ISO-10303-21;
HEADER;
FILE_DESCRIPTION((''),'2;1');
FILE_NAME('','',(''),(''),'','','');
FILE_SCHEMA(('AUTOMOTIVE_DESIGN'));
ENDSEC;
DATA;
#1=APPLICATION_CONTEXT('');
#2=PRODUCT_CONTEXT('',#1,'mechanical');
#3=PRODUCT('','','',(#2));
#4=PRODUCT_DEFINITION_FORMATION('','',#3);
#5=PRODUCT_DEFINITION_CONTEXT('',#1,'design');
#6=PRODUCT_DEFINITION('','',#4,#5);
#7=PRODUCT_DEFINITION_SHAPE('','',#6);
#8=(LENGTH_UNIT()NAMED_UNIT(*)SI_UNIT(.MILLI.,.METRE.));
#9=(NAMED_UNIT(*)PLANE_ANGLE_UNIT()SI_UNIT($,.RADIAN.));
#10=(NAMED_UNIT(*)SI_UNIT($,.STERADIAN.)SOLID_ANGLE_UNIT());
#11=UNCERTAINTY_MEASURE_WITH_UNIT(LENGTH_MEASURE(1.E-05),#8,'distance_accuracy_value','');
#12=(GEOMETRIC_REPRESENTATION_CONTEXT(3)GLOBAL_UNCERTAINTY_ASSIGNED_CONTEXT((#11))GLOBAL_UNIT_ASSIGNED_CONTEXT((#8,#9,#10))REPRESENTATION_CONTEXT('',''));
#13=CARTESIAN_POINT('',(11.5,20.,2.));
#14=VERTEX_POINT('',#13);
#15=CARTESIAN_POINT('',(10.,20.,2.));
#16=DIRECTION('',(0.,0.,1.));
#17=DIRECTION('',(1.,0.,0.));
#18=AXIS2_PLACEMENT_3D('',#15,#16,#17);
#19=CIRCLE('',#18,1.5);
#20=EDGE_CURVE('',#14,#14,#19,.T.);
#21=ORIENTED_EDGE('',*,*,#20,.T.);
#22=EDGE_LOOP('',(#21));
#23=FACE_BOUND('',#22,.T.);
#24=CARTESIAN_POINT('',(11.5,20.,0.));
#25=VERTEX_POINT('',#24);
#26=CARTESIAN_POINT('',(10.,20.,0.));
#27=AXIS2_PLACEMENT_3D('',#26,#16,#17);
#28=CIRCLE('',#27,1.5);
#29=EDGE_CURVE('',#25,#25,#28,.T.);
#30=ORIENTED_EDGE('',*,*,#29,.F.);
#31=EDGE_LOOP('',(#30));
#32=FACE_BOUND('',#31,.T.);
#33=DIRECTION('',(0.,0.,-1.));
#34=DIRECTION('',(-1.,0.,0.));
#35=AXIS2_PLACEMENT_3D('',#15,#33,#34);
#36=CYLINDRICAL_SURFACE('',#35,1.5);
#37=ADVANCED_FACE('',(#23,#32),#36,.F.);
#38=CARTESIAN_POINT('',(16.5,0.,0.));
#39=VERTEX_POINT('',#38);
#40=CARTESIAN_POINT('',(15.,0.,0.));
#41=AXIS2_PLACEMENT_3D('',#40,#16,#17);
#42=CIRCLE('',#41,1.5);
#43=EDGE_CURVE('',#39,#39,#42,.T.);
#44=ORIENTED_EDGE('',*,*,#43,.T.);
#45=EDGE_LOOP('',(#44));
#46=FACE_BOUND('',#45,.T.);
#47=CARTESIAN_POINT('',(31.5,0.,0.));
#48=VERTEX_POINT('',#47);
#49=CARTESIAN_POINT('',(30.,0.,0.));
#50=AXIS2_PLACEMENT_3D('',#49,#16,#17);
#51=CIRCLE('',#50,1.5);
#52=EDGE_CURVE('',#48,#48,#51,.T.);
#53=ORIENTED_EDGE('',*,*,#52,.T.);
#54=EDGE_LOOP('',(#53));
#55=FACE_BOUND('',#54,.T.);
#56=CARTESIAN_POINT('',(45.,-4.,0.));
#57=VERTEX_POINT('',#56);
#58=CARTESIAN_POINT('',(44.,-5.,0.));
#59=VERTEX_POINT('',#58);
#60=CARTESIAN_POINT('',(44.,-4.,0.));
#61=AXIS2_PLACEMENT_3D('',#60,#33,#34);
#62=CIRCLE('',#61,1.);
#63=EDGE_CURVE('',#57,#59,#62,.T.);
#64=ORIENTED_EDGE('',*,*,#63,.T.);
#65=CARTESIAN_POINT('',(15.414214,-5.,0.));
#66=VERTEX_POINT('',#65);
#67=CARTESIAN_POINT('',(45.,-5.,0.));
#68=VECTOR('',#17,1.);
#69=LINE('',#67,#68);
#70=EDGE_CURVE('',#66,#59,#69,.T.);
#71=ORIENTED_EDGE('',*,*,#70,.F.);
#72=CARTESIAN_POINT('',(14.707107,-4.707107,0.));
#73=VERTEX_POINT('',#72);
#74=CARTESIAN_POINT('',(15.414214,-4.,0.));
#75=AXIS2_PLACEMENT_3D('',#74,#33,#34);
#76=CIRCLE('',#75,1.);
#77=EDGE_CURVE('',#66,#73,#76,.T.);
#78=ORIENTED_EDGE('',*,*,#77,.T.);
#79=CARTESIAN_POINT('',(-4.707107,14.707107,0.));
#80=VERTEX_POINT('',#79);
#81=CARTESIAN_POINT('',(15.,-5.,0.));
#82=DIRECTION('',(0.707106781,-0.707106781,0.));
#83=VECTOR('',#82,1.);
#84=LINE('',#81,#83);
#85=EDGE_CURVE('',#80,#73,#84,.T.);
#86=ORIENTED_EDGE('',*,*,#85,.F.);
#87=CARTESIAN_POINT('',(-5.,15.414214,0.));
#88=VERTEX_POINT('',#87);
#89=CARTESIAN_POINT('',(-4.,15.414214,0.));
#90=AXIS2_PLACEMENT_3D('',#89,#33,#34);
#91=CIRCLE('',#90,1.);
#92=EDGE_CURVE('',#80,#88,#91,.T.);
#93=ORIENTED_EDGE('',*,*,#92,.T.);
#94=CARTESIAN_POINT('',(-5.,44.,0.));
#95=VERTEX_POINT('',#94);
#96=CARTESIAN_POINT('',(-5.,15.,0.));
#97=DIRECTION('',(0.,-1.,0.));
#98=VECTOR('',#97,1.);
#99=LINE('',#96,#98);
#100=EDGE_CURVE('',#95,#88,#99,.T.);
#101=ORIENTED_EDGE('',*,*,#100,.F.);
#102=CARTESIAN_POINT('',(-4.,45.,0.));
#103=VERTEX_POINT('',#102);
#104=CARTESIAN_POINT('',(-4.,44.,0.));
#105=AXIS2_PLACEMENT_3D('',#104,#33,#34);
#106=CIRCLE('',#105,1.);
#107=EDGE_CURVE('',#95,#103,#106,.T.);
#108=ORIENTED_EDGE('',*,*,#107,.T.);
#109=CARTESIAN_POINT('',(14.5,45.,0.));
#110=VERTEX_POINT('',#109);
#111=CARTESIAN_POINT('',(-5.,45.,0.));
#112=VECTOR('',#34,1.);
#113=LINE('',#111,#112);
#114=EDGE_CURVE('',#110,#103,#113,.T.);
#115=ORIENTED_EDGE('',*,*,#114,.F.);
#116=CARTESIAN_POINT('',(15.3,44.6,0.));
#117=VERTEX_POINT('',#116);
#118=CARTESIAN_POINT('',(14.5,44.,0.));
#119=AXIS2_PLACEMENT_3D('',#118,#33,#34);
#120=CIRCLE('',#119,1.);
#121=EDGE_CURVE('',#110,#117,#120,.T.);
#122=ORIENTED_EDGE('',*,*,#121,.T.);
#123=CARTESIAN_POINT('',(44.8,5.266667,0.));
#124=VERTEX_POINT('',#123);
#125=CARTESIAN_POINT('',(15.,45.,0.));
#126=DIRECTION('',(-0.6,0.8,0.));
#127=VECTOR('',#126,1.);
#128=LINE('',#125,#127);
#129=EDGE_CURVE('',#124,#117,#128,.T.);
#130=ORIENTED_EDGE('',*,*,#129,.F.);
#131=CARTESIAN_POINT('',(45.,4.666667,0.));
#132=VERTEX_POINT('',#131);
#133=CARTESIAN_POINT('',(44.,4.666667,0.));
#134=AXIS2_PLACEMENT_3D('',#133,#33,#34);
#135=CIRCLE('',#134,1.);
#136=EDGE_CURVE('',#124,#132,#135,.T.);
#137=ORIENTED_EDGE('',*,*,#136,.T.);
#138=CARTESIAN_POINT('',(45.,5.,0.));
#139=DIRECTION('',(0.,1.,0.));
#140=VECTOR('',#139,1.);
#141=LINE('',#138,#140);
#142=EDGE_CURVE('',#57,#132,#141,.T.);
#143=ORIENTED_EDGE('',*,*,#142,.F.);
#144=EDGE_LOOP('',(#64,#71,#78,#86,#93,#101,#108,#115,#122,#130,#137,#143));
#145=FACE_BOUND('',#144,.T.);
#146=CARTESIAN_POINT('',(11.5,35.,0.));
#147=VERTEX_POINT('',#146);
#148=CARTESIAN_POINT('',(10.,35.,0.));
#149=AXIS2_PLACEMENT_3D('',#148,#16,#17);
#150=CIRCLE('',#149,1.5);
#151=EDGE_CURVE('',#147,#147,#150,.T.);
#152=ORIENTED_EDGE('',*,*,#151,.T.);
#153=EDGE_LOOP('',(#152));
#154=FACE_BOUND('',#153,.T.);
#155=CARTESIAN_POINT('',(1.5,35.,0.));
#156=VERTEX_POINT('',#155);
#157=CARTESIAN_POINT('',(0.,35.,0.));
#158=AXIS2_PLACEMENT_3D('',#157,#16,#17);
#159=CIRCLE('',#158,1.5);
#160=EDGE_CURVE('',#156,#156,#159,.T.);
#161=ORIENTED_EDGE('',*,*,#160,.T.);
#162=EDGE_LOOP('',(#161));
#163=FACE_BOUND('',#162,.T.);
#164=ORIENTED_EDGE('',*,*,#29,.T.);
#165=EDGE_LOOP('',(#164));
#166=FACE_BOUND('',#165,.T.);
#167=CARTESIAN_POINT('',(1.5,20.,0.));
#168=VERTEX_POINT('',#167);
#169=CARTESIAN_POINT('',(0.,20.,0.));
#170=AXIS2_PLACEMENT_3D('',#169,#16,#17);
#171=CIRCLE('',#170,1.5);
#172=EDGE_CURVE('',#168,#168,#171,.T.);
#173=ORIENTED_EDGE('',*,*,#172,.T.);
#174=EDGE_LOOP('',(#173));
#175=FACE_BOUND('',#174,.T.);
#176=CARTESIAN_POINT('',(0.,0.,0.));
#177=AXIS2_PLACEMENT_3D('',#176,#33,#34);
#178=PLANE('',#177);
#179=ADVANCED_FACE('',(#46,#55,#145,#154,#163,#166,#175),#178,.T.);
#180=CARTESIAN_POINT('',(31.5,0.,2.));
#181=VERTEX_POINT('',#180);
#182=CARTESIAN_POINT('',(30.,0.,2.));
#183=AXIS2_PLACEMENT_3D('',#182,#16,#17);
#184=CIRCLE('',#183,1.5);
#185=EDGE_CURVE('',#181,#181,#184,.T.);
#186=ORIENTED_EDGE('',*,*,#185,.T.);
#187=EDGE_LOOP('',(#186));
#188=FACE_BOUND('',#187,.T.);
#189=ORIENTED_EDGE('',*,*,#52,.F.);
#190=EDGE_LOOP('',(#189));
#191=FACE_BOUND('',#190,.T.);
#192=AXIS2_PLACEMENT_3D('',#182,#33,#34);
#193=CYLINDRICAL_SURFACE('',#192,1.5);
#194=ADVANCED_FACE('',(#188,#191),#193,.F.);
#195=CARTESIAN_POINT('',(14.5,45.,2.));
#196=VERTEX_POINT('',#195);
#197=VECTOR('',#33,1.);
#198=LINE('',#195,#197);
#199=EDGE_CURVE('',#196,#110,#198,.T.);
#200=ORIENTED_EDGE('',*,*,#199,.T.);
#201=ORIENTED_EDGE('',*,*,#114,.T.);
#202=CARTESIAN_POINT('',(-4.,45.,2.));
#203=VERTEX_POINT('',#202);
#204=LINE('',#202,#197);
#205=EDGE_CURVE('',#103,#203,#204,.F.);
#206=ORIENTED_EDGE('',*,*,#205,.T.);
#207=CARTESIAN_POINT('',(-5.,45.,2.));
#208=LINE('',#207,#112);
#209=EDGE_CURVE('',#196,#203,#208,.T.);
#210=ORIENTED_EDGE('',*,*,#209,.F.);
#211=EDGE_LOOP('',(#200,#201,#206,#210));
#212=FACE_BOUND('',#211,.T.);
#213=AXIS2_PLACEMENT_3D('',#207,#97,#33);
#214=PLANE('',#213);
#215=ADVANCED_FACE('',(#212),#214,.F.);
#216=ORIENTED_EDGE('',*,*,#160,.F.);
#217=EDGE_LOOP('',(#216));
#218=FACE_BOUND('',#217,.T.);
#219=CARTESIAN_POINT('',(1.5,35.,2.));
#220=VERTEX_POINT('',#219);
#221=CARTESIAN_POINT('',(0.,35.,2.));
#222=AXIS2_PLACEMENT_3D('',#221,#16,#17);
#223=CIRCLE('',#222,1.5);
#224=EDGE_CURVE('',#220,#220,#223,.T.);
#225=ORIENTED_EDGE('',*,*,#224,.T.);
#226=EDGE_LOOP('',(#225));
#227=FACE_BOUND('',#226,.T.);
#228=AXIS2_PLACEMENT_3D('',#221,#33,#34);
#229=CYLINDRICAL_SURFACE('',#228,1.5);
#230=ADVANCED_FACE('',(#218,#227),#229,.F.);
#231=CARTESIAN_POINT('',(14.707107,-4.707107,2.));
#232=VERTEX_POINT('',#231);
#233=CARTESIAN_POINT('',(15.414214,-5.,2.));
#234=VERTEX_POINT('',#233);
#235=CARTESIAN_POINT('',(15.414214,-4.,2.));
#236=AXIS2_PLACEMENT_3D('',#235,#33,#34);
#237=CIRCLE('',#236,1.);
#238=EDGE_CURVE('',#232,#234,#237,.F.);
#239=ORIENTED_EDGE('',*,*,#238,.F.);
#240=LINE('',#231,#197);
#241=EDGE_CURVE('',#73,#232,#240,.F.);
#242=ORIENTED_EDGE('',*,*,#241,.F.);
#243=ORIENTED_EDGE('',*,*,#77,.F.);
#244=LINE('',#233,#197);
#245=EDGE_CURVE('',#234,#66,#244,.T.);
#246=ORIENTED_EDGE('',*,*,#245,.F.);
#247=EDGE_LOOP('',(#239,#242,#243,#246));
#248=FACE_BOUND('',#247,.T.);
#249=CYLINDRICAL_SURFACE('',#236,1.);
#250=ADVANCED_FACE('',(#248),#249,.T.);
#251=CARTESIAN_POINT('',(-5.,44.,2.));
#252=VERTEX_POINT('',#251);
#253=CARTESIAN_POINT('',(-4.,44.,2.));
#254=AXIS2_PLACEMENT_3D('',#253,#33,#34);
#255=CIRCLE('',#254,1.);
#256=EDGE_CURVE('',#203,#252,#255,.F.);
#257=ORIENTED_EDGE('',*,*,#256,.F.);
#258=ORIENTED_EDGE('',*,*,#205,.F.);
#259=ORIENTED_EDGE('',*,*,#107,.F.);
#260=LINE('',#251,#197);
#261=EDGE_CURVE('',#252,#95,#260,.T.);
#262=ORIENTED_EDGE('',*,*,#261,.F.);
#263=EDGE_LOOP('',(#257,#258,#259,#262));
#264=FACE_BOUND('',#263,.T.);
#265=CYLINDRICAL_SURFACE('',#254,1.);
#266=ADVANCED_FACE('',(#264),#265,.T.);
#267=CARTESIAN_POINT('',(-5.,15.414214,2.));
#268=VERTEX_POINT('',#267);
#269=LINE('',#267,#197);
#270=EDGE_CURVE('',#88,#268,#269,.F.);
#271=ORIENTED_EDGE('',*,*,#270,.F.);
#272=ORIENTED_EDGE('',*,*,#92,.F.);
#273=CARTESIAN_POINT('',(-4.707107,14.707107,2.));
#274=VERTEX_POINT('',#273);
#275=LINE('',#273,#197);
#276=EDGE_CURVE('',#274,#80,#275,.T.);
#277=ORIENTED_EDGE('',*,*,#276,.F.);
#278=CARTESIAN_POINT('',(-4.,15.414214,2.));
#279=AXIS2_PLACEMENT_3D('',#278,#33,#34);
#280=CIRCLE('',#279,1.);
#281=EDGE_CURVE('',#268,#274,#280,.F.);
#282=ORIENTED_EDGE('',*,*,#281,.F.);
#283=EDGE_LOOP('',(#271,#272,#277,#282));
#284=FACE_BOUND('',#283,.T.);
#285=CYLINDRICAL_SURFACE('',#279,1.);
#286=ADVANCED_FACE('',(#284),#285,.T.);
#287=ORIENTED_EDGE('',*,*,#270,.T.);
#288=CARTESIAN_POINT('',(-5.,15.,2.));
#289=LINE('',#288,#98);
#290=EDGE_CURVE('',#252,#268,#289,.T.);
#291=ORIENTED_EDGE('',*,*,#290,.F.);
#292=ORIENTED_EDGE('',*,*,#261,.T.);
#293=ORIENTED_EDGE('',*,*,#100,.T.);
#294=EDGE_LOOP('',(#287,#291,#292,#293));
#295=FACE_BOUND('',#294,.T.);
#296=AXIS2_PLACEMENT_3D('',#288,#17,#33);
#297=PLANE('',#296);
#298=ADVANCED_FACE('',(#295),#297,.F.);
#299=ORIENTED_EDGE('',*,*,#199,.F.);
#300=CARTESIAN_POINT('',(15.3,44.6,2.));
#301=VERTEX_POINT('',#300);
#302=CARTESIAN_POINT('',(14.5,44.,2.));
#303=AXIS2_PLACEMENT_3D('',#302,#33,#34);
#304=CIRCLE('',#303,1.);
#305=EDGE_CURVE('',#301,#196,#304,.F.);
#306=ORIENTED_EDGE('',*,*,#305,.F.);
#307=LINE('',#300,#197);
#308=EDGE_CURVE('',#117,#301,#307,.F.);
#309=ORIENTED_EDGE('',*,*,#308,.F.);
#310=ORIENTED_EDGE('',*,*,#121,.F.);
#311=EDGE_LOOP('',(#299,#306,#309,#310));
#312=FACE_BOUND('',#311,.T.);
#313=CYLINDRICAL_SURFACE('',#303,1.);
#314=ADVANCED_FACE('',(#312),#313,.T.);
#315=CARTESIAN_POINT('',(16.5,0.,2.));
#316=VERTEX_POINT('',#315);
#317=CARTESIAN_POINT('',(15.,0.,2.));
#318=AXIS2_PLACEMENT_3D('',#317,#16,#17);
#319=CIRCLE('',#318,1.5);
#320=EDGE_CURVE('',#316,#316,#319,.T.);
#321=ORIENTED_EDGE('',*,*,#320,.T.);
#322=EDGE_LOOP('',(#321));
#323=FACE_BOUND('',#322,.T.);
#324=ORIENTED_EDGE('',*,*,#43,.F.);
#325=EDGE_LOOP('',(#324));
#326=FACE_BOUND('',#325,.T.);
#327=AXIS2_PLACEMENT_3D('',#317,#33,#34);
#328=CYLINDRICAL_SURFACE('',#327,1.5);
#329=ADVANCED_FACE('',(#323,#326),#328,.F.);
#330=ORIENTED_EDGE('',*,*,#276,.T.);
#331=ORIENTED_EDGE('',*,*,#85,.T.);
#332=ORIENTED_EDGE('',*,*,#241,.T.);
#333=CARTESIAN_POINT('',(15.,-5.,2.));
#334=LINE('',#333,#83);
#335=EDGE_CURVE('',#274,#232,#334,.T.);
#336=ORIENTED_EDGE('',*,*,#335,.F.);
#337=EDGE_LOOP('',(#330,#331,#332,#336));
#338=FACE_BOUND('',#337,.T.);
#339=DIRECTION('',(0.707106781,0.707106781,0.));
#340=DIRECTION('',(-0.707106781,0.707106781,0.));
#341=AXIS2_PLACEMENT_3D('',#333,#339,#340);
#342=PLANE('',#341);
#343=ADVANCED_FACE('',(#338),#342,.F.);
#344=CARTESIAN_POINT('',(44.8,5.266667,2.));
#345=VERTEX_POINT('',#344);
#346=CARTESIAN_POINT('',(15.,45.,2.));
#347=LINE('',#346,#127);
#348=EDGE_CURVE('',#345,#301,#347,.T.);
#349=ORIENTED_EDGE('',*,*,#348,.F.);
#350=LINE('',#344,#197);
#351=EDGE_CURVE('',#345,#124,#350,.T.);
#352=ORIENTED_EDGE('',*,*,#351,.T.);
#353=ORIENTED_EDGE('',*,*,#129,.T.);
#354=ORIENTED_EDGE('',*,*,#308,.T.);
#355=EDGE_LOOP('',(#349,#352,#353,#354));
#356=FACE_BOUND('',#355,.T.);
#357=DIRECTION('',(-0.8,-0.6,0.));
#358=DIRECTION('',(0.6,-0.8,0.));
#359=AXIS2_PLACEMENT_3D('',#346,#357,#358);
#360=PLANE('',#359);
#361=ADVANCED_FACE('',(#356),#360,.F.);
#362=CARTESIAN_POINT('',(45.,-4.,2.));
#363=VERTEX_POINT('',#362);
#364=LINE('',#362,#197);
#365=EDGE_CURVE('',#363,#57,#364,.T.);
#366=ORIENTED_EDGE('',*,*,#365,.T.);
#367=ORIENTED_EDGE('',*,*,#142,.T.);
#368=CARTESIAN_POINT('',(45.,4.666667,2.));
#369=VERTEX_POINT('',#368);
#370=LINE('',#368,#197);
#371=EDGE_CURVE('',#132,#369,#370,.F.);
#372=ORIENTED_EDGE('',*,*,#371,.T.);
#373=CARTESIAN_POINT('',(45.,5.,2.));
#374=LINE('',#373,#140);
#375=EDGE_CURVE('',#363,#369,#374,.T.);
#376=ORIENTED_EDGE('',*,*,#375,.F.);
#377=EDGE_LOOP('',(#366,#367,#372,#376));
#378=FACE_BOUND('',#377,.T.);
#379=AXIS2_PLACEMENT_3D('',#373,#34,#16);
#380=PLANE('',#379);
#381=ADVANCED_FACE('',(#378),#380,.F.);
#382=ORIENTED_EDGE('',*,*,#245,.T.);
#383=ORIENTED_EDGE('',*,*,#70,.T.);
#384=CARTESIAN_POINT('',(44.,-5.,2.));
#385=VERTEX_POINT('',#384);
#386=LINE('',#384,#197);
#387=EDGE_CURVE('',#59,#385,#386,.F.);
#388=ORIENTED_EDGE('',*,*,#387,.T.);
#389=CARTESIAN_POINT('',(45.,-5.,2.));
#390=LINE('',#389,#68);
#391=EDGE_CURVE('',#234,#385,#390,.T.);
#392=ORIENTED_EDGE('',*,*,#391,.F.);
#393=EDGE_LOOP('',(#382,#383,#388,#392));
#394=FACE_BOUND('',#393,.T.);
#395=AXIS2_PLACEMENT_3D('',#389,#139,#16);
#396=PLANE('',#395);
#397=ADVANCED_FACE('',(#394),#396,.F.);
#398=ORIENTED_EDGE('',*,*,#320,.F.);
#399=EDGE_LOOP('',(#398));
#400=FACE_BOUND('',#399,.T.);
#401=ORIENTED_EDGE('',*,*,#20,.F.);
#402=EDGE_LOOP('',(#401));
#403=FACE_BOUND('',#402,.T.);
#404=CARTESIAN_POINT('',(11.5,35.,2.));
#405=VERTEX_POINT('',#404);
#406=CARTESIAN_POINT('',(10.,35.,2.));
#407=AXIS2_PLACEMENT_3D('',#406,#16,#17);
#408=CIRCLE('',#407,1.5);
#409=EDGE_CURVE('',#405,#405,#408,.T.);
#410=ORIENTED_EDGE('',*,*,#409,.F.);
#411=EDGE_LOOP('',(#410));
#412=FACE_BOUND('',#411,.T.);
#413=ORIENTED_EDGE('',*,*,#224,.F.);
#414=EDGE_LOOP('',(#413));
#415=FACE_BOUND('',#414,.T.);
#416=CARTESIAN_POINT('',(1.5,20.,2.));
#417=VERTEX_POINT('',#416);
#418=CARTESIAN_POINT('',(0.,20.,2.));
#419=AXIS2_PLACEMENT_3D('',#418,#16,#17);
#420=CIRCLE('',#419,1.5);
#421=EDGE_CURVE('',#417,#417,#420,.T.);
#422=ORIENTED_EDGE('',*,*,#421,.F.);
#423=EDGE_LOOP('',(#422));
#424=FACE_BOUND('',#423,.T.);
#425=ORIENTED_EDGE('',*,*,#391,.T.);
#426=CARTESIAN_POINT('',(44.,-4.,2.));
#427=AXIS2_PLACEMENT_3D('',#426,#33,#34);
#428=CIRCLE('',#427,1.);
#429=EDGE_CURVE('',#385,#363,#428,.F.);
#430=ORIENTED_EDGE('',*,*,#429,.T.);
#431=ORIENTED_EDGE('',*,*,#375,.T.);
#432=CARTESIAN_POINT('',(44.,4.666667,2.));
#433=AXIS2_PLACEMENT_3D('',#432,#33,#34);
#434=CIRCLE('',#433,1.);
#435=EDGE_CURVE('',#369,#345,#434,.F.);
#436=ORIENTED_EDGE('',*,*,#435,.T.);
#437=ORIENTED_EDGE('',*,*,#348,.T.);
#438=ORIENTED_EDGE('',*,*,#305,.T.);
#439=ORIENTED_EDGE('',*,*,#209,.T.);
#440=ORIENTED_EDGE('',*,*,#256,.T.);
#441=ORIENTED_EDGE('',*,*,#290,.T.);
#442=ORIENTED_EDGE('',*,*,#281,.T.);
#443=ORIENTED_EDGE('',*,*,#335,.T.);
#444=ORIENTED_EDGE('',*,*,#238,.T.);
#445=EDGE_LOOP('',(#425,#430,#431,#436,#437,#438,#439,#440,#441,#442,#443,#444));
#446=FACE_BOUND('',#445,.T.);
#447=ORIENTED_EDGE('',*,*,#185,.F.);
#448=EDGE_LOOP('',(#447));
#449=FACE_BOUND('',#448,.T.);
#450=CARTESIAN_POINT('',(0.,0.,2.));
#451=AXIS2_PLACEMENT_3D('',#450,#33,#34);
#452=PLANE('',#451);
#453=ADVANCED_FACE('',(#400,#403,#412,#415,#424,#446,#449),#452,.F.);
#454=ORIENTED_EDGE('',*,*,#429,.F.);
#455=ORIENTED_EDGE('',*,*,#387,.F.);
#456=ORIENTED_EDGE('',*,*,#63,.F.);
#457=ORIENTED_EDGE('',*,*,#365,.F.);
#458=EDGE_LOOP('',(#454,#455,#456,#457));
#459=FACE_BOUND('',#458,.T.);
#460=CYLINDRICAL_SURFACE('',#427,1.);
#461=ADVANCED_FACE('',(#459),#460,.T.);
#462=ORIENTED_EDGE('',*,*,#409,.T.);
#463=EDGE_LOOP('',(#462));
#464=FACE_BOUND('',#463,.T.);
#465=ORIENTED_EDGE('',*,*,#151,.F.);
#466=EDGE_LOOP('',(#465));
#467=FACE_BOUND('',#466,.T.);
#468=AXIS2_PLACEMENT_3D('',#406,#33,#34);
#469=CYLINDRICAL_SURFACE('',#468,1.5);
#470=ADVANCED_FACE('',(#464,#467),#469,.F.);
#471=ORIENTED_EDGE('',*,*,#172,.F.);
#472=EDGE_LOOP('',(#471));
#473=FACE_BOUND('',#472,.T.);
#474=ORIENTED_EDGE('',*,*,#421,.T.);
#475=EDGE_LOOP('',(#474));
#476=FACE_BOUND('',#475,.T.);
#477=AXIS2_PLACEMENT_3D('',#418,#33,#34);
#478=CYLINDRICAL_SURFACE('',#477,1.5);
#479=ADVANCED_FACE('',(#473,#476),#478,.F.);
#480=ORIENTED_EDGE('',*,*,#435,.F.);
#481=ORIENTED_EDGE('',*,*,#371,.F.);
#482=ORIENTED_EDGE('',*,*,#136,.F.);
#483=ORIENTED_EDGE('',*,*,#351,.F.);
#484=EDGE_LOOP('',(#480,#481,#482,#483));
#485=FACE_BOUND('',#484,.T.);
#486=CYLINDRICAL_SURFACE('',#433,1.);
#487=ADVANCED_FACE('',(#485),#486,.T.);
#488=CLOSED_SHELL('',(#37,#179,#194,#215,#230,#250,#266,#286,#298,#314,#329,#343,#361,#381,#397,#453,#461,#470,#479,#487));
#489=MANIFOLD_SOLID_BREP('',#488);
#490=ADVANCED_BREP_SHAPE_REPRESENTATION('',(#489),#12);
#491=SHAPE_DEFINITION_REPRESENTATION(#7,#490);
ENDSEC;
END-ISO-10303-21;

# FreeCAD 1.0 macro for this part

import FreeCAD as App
import Part
import Sketcher
Q = App.Units.Quantity


def edges_at(feature, points):
    """Names of the edges that pass closest to the given points."""
    edges = feature.Shape.Edges
    near = lambda p: min(range(len(edges)), key=lambda i: edges[i].distToShape(Part.Vertex(*p))[0])
    return sorted({f"Edge{near(p) + 1}" for p in points})


def add_polygon(sketch, points):
    """Adds a closed chain of lines whose ends are joined by coincident constraints."""
    first, n = sketch.GeometryCount, len(points)
    for a, b in zip(points, points[1:] + points[:1]):
        sketch.addGeometry(Part.LineSegment(App.Vector(*a, 0), App.Vector(*b, 0)), False)
    for i in range(n):
        sketch.addConstraint(Sketcher.Constraint("Coincident", first + i, 2, first + (i + 1) % n, 1))

doc = App.newDocument("Part")
body = doc.addObject("PartDesign::Body", "Body")

sketch1 = body.newObject("Sketcher::SketchObject", "Sketch")
sketch1.AttachmentSupport = (doc.getObject("XY_Plane"), [""])
sketch1.MapMode = "FlatFace"
add_polygon(sketch1, [(15, 45), (-5, 45), (-5, 15), (15, -5), (45, -5), (45, 5)])
sketch1.addGeometry(Part.Circle(App.Vector(30, 0, 0), App.Vector(0, 0, 1), 1.5), False)
sketch1.addGeometry(Part.Circle(App.Vector(15, 0, 0), App.Vector(0, 0, 1), 1.5), False)
sketch1.addGeometry(Part.Circle(App.Vector(10, 20, 0), App.Vector(0, 0, 1), 1.5), False)
sketch1.addGeometry(Part.Circle(App.Vector(0, 20, 0), App.Vector(0, 0, 1), 1.5), False)
sketch1.addGeometry(Part.Circle(App.Vector(10, 35, 0), App.Vector(0, 0, 1), 1.5), False)
sketch1.addGeometry(Part.Circle(App.Vector(0, 35, 0), App.Vector(0, 0, 1), 1.5), False)
sketch1.addConstraint([
    Sketcher.Constraint("Horizontal", 0),
    Sketcher.Constraint("Vertical", 1),
    Sketcher.Constraint("Horizontal", 3),
    Sketcher.Constraint("Vertical", 4),
    Sketcher.Constraint("Equal", 6, 7),
    Sketcher.Constraint("Equal", 7, 8),
    Sketcher.Constraint("Equal", 8, 9),
    Sketcher.Constraint("Equal", 9, 10),
    Sketcher.Constraint("Equal", 10, 11),
    Sketcher.Constraint("PointOnObject", 6, 3, -1),
    Sketcher.Constraint("PointOnObject", 7, 3, -1),
    Sketcher.Constraint("PointOnObject", 9, 3, -2),
    Sketcher.Constraint("PointOnObject", 11, 3, -2),
    Sketcher.Constraint("Horizontal", 8, 3, 9, 3),
    Sketcher.Constraint("Horizontal", 10, 3, 11, 3),
    Sketcher.Constraint("Vertical", 8, 3, 10, 3),
    Sketcher.Constraint("Vertical", 7, 3, 2, 2),
    Sketcher.Constraint("Vertical", 2, 2, 5, 2),
    Sketcher.Constraint("Equal", 3, 1),
    Sketcher.Constraint("Diameter", 6, Q("3 mm")),
    Sketcher.Constraint("DistanceX", 0, 2, 0, 1, Q("20 mm")),
    Sketcher.Constraint("DistanceX", 3, 1, 3, 2, Q("30 mm")),
    Sketcher.Constraint("DistanceY", 4, 1, 4, 2, Q("10 mm")),
    Sketcher.Constraint("Angle", 2, Q("-45 deg")),
    Sketcher.Constraint("DistanceX", -1, 1, 6, 3, Q("30 mm")),
    Sketcher.Constraint("DistanceX", -1, 1, 7, 3, Q("15 mm")),
    Sketcher.Constraint("DistanceX", -1, 1, 8, 3, Q("10 mm")),
    Sketcher.Constraint("DistanceY", -1, 1, 8, 3, Q("20 mm")),
    Sketcher.Constraint("DistanceY", -1, 1, 10, 3, Q("35 mm")),
    Sketcher.Constraint("DistanceY", -1, 1, 0, 2, Q("45 mm")),
])
pad1 = body.newObject("PartDesign::Pad", "Pad")
pad1.Profile = sketch1
pad1.Length = 2
doc.recompute()

fillet = body.newObject("PartDesign::Fillet", "Fillet")
fillet.Base = (pad1, edges_at(pad1, [
    (-5, 45, 1),
    (15, 45, 1),
    (45, 5, 1),
    (45, -5, 1),
    (15, -5, 1),
    (-5, 15, 1),
]))
fillet.Radius = 1

doc.recompute()
